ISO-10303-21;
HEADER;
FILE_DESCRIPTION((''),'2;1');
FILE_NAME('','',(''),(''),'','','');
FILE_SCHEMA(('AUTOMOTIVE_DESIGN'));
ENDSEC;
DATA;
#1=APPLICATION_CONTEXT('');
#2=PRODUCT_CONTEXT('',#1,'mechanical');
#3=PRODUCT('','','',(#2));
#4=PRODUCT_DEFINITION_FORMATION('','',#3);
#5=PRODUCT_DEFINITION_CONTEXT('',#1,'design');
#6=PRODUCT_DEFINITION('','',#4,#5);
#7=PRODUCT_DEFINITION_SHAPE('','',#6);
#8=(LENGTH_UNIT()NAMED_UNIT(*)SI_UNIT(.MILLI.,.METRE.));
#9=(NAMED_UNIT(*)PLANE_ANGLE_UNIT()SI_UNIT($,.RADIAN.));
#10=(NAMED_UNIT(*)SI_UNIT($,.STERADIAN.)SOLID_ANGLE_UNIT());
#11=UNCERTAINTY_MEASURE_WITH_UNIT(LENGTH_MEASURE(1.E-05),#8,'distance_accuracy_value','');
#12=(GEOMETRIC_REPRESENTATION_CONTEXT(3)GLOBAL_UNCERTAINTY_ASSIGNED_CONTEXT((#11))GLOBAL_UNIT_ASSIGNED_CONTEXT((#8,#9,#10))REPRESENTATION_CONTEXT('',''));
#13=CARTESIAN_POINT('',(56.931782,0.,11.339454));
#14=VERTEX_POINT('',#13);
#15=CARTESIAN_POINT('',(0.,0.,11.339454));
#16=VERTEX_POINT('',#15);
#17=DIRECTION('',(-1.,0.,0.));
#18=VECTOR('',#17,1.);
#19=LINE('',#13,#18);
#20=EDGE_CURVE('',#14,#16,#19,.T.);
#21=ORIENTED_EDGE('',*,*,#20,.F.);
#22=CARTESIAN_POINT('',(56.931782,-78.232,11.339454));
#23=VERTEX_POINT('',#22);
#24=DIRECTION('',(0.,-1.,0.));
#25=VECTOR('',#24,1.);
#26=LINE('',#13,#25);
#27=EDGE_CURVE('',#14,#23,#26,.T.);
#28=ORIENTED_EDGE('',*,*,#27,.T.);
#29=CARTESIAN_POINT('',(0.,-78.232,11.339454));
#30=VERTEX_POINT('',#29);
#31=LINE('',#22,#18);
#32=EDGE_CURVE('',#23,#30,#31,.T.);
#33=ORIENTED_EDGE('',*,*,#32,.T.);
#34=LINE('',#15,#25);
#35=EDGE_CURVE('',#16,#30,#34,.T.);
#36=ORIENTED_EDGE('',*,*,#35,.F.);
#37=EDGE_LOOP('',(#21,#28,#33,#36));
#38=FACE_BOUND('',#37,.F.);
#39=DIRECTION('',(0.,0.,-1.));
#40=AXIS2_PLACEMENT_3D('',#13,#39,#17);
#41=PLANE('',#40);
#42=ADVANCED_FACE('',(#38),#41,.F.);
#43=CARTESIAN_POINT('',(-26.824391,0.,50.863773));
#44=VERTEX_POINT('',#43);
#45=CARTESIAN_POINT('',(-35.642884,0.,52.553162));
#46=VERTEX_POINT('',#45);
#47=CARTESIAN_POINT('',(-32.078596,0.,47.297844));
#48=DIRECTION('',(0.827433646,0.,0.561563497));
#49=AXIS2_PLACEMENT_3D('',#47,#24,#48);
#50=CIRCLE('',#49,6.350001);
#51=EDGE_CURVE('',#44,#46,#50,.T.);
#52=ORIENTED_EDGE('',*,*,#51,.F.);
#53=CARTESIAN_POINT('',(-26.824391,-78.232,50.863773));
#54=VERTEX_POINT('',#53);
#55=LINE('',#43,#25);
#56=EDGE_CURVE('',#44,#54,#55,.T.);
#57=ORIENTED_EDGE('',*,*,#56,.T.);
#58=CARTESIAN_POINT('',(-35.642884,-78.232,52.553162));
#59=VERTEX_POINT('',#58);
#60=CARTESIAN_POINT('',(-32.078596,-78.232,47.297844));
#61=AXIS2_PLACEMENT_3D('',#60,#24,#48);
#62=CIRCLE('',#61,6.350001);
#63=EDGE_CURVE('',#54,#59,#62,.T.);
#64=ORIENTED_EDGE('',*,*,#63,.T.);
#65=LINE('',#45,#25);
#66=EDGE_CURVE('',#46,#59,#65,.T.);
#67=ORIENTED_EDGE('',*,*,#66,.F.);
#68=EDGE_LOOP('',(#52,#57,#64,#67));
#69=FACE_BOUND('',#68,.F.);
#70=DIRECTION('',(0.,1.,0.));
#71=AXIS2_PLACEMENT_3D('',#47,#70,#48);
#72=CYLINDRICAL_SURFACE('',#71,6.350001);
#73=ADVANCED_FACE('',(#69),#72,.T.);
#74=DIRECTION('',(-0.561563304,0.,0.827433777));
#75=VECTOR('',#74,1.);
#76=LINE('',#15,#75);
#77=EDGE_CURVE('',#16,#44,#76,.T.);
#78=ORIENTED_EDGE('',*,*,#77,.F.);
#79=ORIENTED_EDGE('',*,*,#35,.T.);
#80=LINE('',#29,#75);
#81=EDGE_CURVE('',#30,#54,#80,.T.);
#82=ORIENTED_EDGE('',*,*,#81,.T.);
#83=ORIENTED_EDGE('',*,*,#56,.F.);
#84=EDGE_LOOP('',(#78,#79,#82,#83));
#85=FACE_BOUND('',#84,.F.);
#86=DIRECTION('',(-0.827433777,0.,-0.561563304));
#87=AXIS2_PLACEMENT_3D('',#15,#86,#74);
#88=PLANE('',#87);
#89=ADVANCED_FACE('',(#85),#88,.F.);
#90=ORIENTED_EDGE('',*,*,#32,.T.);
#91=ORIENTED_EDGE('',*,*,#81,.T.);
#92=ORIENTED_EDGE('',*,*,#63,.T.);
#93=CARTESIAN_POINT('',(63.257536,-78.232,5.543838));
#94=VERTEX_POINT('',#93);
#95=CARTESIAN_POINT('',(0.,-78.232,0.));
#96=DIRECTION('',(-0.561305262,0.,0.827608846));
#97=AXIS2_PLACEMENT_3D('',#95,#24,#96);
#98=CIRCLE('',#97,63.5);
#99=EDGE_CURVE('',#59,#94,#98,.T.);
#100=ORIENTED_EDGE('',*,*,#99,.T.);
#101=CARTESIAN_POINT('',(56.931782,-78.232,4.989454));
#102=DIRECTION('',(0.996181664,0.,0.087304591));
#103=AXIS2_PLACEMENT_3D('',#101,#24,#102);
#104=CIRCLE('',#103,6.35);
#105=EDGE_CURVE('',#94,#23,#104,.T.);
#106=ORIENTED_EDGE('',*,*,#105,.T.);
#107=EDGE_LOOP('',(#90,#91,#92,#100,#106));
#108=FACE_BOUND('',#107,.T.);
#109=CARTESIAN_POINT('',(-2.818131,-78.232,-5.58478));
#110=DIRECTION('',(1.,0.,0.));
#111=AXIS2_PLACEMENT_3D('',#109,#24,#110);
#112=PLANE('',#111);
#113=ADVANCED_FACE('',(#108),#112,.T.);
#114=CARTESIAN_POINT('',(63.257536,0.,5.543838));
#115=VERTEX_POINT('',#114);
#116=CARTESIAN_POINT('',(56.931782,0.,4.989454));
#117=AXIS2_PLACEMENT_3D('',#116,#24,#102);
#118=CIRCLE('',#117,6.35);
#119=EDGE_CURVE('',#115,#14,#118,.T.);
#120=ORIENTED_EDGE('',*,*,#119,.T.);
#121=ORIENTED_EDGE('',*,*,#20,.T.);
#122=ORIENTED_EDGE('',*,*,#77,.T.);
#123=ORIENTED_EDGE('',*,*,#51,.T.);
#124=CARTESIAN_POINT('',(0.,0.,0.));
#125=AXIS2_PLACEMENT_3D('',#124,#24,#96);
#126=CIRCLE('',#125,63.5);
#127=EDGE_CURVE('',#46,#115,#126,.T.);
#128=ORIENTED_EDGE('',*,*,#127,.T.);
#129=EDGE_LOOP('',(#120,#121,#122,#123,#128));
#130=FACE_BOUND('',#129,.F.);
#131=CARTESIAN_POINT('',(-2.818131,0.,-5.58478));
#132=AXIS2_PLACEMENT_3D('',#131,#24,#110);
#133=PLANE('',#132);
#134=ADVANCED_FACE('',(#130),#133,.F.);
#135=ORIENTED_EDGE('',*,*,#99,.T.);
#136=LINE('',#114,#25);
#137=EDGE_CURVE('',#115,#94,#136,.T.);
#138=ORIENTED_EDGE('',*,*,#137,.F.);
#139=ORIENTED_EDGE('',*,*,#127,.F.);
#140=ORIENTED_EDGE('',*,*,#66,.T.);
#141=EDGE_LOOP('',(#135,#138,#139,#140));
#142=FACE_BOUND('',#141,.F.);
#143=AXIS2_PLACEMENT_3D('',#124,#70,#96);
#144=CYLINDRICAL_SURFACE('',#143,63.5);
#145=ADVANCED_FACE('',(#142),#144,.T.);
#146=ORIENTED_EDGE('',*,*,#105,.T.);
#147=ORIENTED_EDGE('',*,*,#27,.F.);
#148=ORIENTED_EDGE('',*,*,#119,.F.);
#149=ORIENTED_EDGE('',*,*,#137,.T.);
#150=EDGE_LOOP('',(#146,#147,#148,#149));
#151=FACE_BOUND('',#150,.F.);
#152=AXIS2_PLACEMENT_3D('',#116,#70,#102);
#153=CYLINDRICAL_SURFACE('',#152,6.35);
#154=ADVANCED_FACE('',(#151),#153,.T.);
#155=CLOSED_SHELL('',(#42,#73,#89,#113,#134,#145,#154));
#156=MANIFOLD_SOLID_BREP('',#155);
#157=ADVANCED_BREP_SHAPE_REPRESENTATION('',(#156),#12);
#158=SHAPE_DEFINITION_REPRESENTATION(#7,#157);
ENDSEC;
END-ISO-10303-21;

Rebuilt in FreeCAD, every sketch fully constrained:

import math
import FreeCAD as App
import Part
import Sketcher
Q = App.Units.Quantity

doc = App.newDocument("Part")
body = doc.addObject("PartDesign::Body", "Body")

# Sketch on XZ plane
sketch1 = body.newObject("Sketcher::SketchObject", "Sketch")
sketch1.AttachmentSupport = (doc.getObject("XZ_Plane"), [""])
sketch1.MapMode = "FlatFace"
sketch1.addGeometry([
    Part.ArcOfCircle(Part.Circle(App.Vector(-32.078596, 47.297844, 0), App.Vector(0, 0, 1), 6.350001), math.radians(34.163993), math.radians(124.146103)),  # 0
    Part.ArcOfCircle(Part.Circle(App.Vector(0, 0, 0), App.Vector(0, 0, 1), 63.5), math.radians(124.146113), math.radians(365.008558)),  # 1
    Part.ArcOfCircle(Part.Circle(App.Vector(56.931782, 4.989454, 0), App.Vector(0, 0, 1), 6.35), math.radians(5.008561), math.radians(90.000002)),  # 2
    Part.LineSegment(App.Vector(56.931782, 11.339454, 0), App.Vector(0, 11.339454, 0)),  # 3
    Part.LineSegment(App.Vector(0, 11.339454, 0), App.Vector(-26.824391, 50.863773, 0)),  # 4
], False)
sketch1.addConstraint([
    Sketcher.Constraint("Coincident", 0, 2, 1, 1),
    Sketcher.Constraint("Coincident", 1, 2, 2, 1),
    Sketcher.Constraint("Coincident", 2, 2, 3, 1),
    Sketcher.Constraint("Coincident", 3, 2, 4, 1),
    Sketcher.Constraint("Coincident", 4, 2, 0, 1),
    Sketcher.Constraint("Horizontal", 3),
    Sketcher.Constraint("Coincident", 1, 3, -1, 1),
    Sketcher.Constraint("PointOnObject", 3, 2, -2),
    Sketcher.Constraint("Radius", 1, Q("2.5 in")),
    Sketcher.Constraint("Radius", 0, Q("0.2500001 in")),
    Sketcher.Constraint("Radius", 2, Q("0.25 in")),
    Sketcher.Constraint("DistanceX", 3, 2, 3, 1, Q("56.931782 mm")),
    Sketcher.Constraint("Distance", 4, Q("47.76735 mm")),
    Sketcher.Constraint("DistanceY", -1, 1, 0, 2, Q("52.553162 mm")),
    Sketcher.Constraint("DistanceY", -1, 1, 1, 2, Q("5.543838 mm")),
    Sketcher.Constraint("DistanceX", 4, 2, -1, 1, Q("26.824391 mm")),
    Sketcher.Constraint("DistanceX", 0, 3, 2, 3, Q("89.010378 mm")),
])
pad1 = body.newObject("PartDesign::Pad", "Pad")
pad1.Profile = sketch1
pad1.Length = Q("3.08 in")

doc.recompute()
